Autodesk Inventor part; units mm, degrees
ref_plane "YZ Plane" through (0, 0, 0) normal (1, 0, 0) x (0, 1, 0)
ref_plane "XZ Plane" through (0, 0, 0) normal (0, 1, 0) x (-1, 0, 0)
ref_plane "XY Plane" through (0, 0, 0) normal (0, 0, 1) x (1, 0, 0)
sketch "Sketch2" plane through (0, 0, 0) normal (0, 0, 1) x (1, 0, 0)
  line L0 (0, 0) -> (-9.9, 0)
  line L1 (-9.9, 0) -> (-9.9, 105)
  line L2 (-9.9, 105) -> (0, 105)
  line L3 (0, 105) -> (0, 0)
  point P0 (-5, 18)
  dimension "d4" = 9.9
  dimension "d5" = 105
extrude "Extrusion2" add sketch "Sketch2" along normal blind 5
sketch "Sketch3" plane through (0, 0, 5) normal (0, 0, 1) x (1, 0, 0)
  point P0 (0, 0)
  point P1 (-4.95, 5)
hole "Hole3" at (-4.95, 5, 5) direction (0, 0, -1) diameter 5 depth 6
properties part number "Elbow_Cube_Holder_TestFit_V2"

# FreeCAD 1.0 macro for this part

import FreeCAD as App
import Part
import Sketcher

V = App.Vector
Q = App.Units.Quantity

doc = App.newDocument("Part")
body = doc.addObject("PartDesign::Body", "Body")

# Sketch on XY plane
sketch1 = body.newObject("Sketcher::SketchObject", "Sketch")
sketch1.AttachmentSupport = (doc.getObject("XY_Plane"), [""])
sketch1.MapMode = "FlatFace"
sketch1.addGeometry(Part.LineSegment(V(-10, 0, 0), V(0, 0, 0)), False)
sketch1.addGeometry(Part.LineSegment(V(0, 0, 0), V(0, 105, 0)), False)
sketch1.addGeometry(Part.LineSegment(V(0, 105, 0), V(-10, 105, 0)), False)
sketch1.addGeometry(Part.LineSegment(V(-10, 105, 0), V(-10, 0, 0)), False)
sketch1.addConstraint(Sketcher.Constraint("Coincident", 0, 2, 1, 1))
sketch1.addConstraint(Sketcher.Constraint("Coincident", 1, 2, 2, 1))
sketch1.addConstraint(Sketcher.Constraint("Coincident", 2, 2, 3, 1))
sketch1.addConstraint(Sketcher.Constraint("Coincident", 3, 2, 0, 1))
sketch1.addConstraint(Sketcher.Constraint("Horizontal", 0))
sketch1.addConstraint(Sketcher.Constraint("Vertical", 1))
sketch1.addConstraint(Sketcher.Constraint("Horizontal", 2))
sketch1.addConstraint(Sketcher.Constraint("Vertical", 3))
sketch1.addConstraint(Sketcher.Constraint("Coincident", 0, 2, -1, 1))
sketch1.addConstraint(Sketcher.Constraint("DistanceY", 1, 1, 1, 2, Q("105 mm")))
sketch1.addConstraint(Sketcher.Constraint("DistanceX", 0, 1, 0, 2, Q("9.9 mm")))
pad1 = body.newObject("PartDesign::Pad", "Pad")
pad1.Profile = sketch1
pad1.Length = 5

# Sketch on XY plane
sketch2 = body.newObject("Sketcher::SketchObject", "Sketch001")
sketch2.AttachmentSupport = (doc.getObject("XY_Plane"), [""])
sketch2.MapMode = "FlatFace"
sketch2.AttachmentOffset = App.Placement(V(0, 0, 5), App.Rotation())
sketch2.addGeometry(Part.Circle(V(-5, 5, 0), V(0, 0, 1), 2.5), False)
sketch2.addConstraint(Sketcher.Constraint("Diameter", 0, Q("5 mm")))
sketch2.addConstraint(Sketcher.Constraint("DistanceY", -1, 1, 0, 3, Q("5 mm")))
sketch2.addConstraint(Sketcher.Constraint("DistanceX", 0, 3, -1, 1, Q("4.95 mm")))
doc.recompute()
hole = body.newObject("PartDesign::Hole", "Hole")
hole.Profile = sketch2
hole.ThreadType = "None"
hole.Diameter = 5
hole.DepthType = "Dimension"
hole.Depth = 6
hole.DrillPoint = "Flat"

doc.recompute()
